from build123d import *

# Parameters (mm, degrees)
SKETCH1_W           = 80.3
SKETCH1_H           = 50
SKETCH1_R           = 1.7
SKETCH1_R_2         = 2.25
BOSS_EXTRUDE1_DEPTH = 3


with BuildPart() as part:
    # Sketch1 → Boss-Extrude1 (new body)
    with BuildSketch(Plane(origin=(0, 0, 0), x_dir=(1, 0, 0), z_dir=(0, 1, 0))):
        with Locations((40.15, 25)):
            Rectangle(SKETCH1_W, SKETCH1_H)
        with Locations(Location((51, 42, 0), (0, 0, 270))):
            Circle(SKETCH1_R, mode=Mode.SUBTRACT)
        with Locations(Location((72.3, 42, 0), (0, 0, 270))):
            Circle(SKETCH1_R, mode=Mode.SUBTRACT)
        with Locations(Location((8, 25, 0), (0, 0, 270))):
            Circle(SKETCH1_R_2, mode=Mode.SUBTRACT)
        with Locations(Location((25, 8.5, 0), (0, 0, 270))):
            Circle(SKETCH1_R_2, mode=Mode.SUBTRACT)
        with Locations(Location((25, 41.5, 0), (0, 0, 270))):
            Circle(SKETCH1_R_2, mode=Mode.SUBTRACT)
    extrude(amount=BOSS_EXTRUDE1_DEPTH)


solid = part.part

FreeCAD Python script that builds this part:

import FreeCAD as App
import Part
import Sketcher
from FreeCAD import Vector
Q = App.Units.Quantity

doc = App.newDocument("Part")
body = doc.addObject("PartDesign::Body", "Body")

# Sketch on XZ plane
sketch1 = doc.addObject("Sketcher::SketchObject", "Sketch")
body.addObject(sketch1)
sketch1.AttachmentSupport = (doc.XZ_Plane, [""])
sketch1.MapMode = "FlatFace"
sketch1.addGeometry([
    Part.LineSegment(Vector(0, -50, 0), Vector(0, 0, 0)),  # 0
    Part.LineSegment(Vector(0, 0, 0), Vector(80.3, 0, 0)),  # 1
    Part.LineSegment(Vector(80.3, 0, 0), Vector(80.3, -50, 0)),  # 2
    Part.LineSegment(Vector(80.3, -50, 0), Vector(0, -50, 0)),  # 3
    Part.Circle(Vector(25, -8.5, 0), Vector(0, 0, 1), 2.25),  # 4
    Part.Circle(Vector(8, -25, 0), Vector(0, 0, 1), 2.25),  # 5
    Part.Circle(Vector(25, -41.5, 0), Vector(0, 0, 1), 2.25),  # 6
    Part.Circle(Vector(51, -42, 0), Vector(0, 0, 1), 1.7),  # 7
    Part.Circle(Vector(72.3, -42, 0), Vector(0, 0, 1), 1.7),  # 8
], False)
sketch1.addConstraint([
    Sketcher.Constraint("Coincident", 0, 2, 1, 1),
    Sketcher.Constraint("Coincident", 1, 2, 2, 1),
    Sketcher.Constraint("Coincident", 2, 2, 3, 1),
    Sketcher.Constraint("Coincident", 3, 2, 0, 1),
    Sketcher.Constraint("Vertical", 0),
    Sketcher.Constraint("Horizontal", 1),
    Sketcher.Constraint("Vertical", 2),
    Sketcher.Constraint("Horizontal", 3),
    Sketcher.Constraint("Coincident", 0, 2, -1, 1),
    Sketcher.Constraint("Equal", 4, 5),
    Sketcher.Constraint("Equal", 5, 6),
    Sketcher.Constraint("Equal", 7, 8),
    Sketcher.Constraint("Horizontal", 7, 3, 8, 3),
    Sketcher.Constraint("Vertical", 4, 3, 6, 3),
    Sketcher.Constraint("Diameter", 4, Q("4.5 mm")),
    Sketcher.Constraint("Diameter", 7, Q("3.4 mm")),
    Sketcher.Constraint("DistanceY", 0, 1, 0, 2, Q("50 mm")),
    Sketcher.Constraint("DistanceX", 1, 1, 1, 2, Q("80.3 mm")),
    Sketcher.Constraint("DistanceX", -1, 1, 4, 3, Q("25 mm")),
    Sketcher.Constraint("DistanceX", -1, 1, 5, 3, Q("8 mm")),
    Sketcher.Constraint("DistanceY", 5, 3, -1, 1, Q("25 mm")),
    Sketcher.Constraint("DistanceX", -1, 1, 7, 3, Q("51 mm")),
    Sketcher.Constraint("DistanceY", 7, 3, -1, 1, Q("42 mm")),
    Sketcher.Constraint("DistanceY", 6, 3, 4, 3, Q("33 mm")),
    Sketcher.Constraint("DistanceX", 8, 3, 1, 2, Q("8 mm")),
    Sketcher.Constraint("DistanceY", 4, 3, -1, 1, Q("8.5 mm")),
])
pad1 = doc.addObject("PartDesign::Pad", "Pad")
body.addObject(pad1)
pad1.Profile = sketch1
pad1.Length = 3
pad1.Reversed = True

doc.recompute()
